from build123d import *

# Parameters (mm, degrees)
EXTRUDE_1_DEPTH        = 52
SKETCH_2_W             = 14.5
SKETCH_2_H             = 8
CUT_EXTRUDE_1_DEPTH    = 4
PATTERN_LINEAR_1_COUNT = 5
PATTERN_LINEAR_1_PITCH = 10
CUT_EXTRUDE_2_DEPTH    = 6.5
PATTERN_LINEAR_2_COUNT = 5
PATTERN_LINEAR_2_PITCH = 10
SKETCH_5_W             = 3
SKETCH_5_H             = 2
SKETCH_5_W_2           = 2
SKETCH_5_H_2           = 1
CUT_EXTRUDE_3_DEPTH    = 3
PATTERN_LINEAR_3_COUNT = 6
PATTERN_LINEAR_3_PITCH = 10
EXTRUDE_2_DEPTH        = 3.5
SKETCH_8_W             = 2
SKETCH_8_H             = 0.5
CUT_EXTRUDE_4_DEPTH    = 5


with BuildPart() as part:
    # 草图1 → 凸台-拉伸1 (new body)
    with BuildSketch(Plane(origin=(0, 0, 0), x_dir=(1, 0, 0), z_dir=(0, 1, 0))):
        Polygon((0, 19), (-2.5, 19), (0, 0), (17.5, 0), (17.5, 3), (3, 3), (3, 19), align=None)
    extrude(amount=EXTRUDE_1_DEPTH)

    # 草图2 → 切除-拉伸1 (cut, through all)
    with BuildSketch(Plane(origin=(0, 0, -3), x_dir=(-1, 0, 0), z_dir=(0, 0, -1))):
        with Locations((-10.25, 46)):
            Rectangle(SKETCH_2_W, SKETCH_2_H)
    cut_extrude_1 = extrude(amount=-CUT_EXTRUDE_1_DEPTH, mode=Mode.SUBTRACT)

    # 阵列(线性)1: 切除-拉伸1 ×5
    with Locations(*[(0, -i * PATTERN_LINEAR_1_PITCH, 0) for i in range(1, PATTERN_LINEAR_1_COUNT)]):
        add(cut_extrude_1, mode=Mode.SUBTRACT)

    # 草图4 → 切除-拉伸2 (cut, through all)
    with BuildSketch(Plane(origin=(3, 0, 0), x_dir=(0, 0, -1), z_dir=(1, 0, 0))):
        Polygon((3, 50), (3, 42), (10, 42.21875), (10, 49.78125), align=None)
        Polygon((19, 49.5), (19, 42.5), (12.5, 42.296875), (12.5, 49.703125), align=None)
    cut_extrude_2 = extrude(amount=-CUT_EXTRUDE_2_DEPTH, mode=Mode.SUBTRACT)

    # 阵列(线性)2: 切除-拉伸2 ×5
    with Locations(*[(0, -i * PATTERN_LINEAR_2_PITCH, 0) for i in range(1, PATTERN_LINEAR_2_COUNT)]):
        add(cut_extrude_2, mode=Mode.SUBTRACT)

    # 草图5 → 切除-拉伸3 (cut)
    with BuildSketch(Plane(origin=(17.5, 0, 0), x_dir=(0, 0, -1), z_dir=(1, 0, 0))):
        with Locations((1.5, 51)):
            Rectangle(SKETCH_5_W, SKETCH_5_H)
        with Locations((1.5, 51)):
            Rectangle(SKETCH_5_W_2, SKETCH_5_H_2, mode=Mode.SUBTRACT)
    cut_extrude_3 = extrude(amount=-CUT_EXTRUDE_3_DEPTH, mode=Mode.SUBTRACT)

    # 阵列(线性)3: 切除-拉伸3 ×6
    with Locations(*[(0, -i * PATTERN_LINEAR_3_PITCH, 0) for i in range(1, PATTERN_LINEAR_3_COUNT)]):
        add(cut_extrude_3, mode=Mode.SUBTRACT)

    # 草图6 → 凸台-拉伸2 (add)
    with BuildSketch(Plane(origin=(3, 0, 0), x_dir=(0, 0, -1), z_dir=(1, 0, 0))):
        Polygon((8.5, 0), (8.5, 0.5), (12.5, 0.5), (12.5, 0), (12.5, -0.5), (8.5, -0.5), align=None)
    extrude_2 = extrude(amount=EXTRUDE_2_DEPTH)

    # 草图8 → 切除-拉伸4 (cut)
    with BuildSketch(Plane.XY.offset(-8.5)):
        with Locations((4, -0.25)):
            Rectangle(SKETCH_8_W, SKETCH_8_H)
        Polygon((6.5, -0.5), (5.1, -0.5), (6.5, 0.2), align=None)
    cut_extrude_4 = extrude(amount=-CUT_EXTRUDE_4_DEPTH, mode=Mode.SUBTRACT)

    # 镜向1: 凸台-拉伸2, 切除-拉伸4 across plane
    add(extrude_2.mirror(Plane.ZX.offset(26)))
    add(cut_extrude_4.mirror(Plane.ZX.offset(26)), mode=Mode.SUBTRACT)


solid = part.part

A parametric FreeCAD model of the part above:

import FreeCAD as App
import Part
import Sketcher

V = App.Vector
Q = App.Units.Quantity

doc = App.newDocument("Part")
body = doc.addObject("PartDesign::Body", "Body")

# Sketch on XZ plane
sketch1 = body.newObject("Sketcher::SketchObject", "Sketch")
sketch1.AttachmentSupport = (doc.getObject("XZ_Plane"), [""])
sketch1.MapMode = "FlatFace"
sketch1.addGeometry([
    Part.LineSegment(V(-2.5, -19, 0), V(0, 0, 0)),  # 0
    Part.LineSegment(V(0, 0, 0), V(17.5, 0, 0)),  # 1
    Part.LineSegment(V(17.5, 0, 0), V(17.5, -3, 0)),  # 2
    Part.LineSegment(V(17.5, -3, 0), V(3, -3, 0)),  # 3
    Part.LineSegment(V(3, -3, 0), V(3, -19, 0)),  # 4
    Part.LineSegment(V(3, -19, 0), V(-2.5, -19, 0)),  # 5
], False)
sketch1.addConstraint([
    Sketcher.Constraint("Coincident", 0, 2, 1, 1),
    Sketcher.Constraint("Coincident", 1, 2, 2, 1),
    Sketcher.Constraint("Coincident", 2, 2, 3, 1),
    Sketcher.Constraint("Coincident", 3, 2, 4, 1),
    Sketcher.Constraint("Coincident", 4, 2, 5, 1),
    Sketcher.Constraint("Coincident", 5, 2, 0, 1),
    Sketcher.Constraint("Horizontal", 1),
    Sketcher.Constraint("Vertical", 2),
    Sketcher.Constraint("Horizontal", 3),
    Sketcher.Constraint("Vertical", 4),
    Sketcher.Constraint("Horizontal", 5),
    Sketcher.Constraint("Coincident", 0, 2, -1, 1),
    Sketcher.Constraint("DistanceY", 2, 2, 2, 1, Q("3 mm")),
    Sketcher.Constraint("DistanceY", 4, 2, 4, 1, Q("16 mm")),
    Sketcher.Constraint("DistanceX", 1, 1, 1, 2, Q("17.5 mm")),
    Sketcher.Constraint("DistanceX", 3, 2, 3, 1, Q("14.5 mm")),
    Sketcher.Constraint("DistanceX", 5, 2, 5, 1, Q("5.5 mm")),
])
pad1 = body.newObject("PartDesign::Pad", "Pad")
pad1.Profile = sketch1
pad1.Length = 52
pad1.Reversed = True

# Sketch on XY plane
sketch2 = body.newObject("Sketcher::SketchObject", "Sketch001")
sketch2.AttachmentSupport = (doc.getObject("XY_Plane"), [""])
sketch2.MapMode = "FlatFace"
sketch2.AttachmentOffset = App.Placement(V(0, 0, -3), App.Rotation())
sketch2.addGeometry([
    Part.LineSegment(V(18, 50, 0), V(18, 42, 0)),
    Part.LineSegment(V(18, 42, 0), V(3, 42, 0)),
    Part.LineSegment(V(3, 42, 0), V(3, 50, 0)),
    Part.LineSegment(V(3, 50, 0), V(18, 50, 0)),
], False)
sketch2.addConstraint([
    Sketcher.Constraint("Coincident", 0, 2, 1, 1),
    Sketcher.Constraint("Coincident", 1, 2, 2, 1),
    Sketcher.Constraint("Coincident", 2, 2, 3, 1),
    Sketcher.Constraint("Coincident", 3, 2, 0, 1),
    Sketcher.Constraint("Vertical", 0),
    Sketcher.Constraint("Horizontal", 1),
    Sketcher.Constraint("Vertical", 2),
    Sketcher.Constraint("Horizontal", 3),
    Sketcher.Constraint("DistanceY", 0, 2, 0, 1, Q("8 mm")),
    Sketcher.Constraint("DistanceX", 1, 2, 1, 1, Q("14.5 mm")),
    Sketcher.Constraint("DistanceY", -1, 1, 0, 2, Q("42 mm")),
    Sketcher.Constraint("DistanceX", -1, 1, 1, 2, Q("3 mm")),
])
pocket1 = body.newObject("PartDesign::Pocket", "Pocket")
pocket1.Profile = sketch2
pocket1.Type = "ThroughAll"
pocket1.Reversed = True
doc.recompute()

linearpattern = body.newObject("PartDesign::LinearPattern", "LinearPattern")
linearpattern.Originals = [pocket1]
linearpattern.Direction = (doc.getObject("Y_Axis"), [""])
linearpattern.Mode = "offset"
linearpattern.Offset = 10
linearpattern.Occurrences = 5
linearpattern.Reversed = True
body.Tip = linearpattern

# Sketch on YZ plane
sketch3 = body.newObject("Sketcher::SketchObject", "Sketch002")
sketch3.AttachmentSupport = (doc.getObject("YZ_Plane"), [""])
sketch3.MapMode = "FlatFace"
sketch3.AttachmentOffset = App.Placement(V(0, 0, 3), App.Rotation())
sketch3.addGeometry([
    Part.LineSegment(V(50, -3, 0), V(42, -3, 0)),  # 0
    Part.LineSegment(V(42, -3, 0), V(42, -10, 0)),  # 1
    Part.LineSegment(V(42, -10, 0), V(50, -10, 0)),  # 2
    Part.LineSegment(V(50, -10, 0), V(50, -3, 0)),  # 3
    Part.LineSegment(V(42, -19, 0), V(50, -19, 0)),  # 4
    Part.LineSegment(V(50, -19, 0), V(50, -12, 0)),  # 5
    Part.LineSegment(V(50, -12, 0), V(42, -12, 0)),  # 6
    Part.LineSegment(V(42, -12, 0), V(42, -19, 0)),  # 7
], False)
sketch3.addConstraint([
    Sketcher.Constraint("Coincident", 0, 2, 1, 1),
    Sketcher.Constraint("Coincident", 1, 2, 2, 1),
    Sketcher.Constraint("Coincident", 2, 2, 3, 1),
    Sketcher.Constraint("Coincident", 3, 2, 0, 1),
    Sketcher.Constraint("Coincident", 4, 2, 5, 1),
    Sketcher.Constraint("Coincident", 5, 2, 6, 1),
    Sketcher.Constraint("Coincident", 6, 2, 7, 1),
    Sketcher.Constraint("Coincident", 7, 2, 4, 1),
    Sketcher.Constraint("Horizontal", 0),
    Sketcher.Constraint("Horizontal", 2),
    Sketcher.Constraint("Horizontal", 4),
    Sketcher.Constraint("Horizontal", 6),
    Sketcher.Constraint("Parallel", 3, 5),
    Sketcher.Constraint("Parallel", 1, 7),
    Sketcher.Constraint("Equal", 1, 3),
    Sketcher.Constraint("DistanceX", 0, 2, 0, 1, Q("8 mm")),
    Sketcher.Constraint("DistanceX", 4, 1, 4, 2, Q("7 mm")),
    Sketcher.Constraint("DistanceX", -1, 1, 0, 2, Q("42 mm")),
    Sketcher.Constraint("DistanceY", 0, 2, -1, 1, Q("3 mm")),
    Sketcher.Constraint("DistanceY", 1, 2, -1, 1, Q("10 mm")),
    Sketcher.Constraint("DistanceY", 4, 2, -1, 1, Q("19 mm")),
    Sketcher.Constraint("DistanceX", -1, 1, 4, 2, Q("49.5 mm")),
    Sketcher.Constraint("DistanceY", 5, 2, -1, 1, Q("12.5 mm")),
    Sketcher.Constraint("DistanceX", 2, 1, 2, 2, Q("7.5625 mm")),
])
pocket2 = body.newObject("PartDesign::Pocket", "Pocket001")
pocket2.Profile = sketch3
pocket2.Type = "ThroughAll"
doc.recompute()

linearpattern2 = body.newObject("PartDesign::LinearPattern", "LinearPattern001")
linearpattern2.Originals = [pocket2]
linearpattern2.Direction = (doc.getObject("Y_Axis"), [""])
linearpattern2.Mode = "offset"
linearpattern2.Offset = 10
linearpattern2.Occurrences = 5
linearpattern2.Reversed = True
body.Tip = linearpattern2

# Sketch on YZ plane
sketch4 = body.newObject("Sketcher::SketchObject", "Sketch003")
sketch4.AttachmentSupport = (doc.getObject("YZ_Plane"), [""])
sketch4.MapMode = "FlatFace"
sketch4.AttachmentOffset = App.Placement(V(0, 0, 17.5), App.Rotation())
sketch4.addGeometry([
    Part.LineSegment(V(52, 0, 0), V(50, 0, 0)),  # 0
    Part.LineSegment(V(50, 0, 0), V(50, -3, 0)),  # 1
    Part.LineSegment(V(50, -3, 0), V(52, -3, 0)),  # 2
    Part.LineSegment(V(52, -3, 0), V(52, 0, 0)),  # 3
    Part.LineSegment(V(50.5, -2.5, 0), V(50.5, -0.5, 0)),  # 4
    Part.LineSegment(V(50.5, -0.5, 0), V(51.5, -0.5, 0)),  # 5
    Part.LineSegment(V(51.5, -0.5, 0), V(51.5, -2.5, 0)),  # 6
    Part.LineSegment(V(51.5, -2.5, 0), V(50.5, -2.5, 0)),  # 7
], False)
sketch4.addConstraint([
    Sketcher.Constraint("Coincident", 0, 2, 1, 1),
    Sketcher.Constraint("Coincident", 1, 2, 2, 1),
    Sketcher.Constraint("Coincident", 2, 2, 3, 1),
    Sketcher.Constraint("Coincident", 3, 2, 0, 1),
    Sketcher.Constraint("Coincident", 4, 2, 5, 1),
    Sketcher.Constraint("Coincident", 5, 2, 6, 1),
    Sketcher.Constraint("Coincident", 6, 2, 7, 1),
    Sketcher.Constraint("Coincident", 7, 2, 4, 1),
    Sketcher.Constraint("Horizontal", 0),
    Sketcher.Constraint("Vertical", 1),
    Sketcher.Constraint("Horizontal", 2),
    Sketcher.Constraint("Vertical", 3),
    Sketcher.Constraint("Vertical", 4),
    Sketcher.Constraint("Horizontal", 5),
    Sketcher.Constraint("Vertical", 6),
    Sketcher.Constraint("Horizontal", 7),
    Sketcher.Constraint("PointOnObject", 0, 2, -1),
    Sketcher.Constraint("Equal", 2, 4),
    Sketcher.Constraint("DistanceX", 0, 2, 0, 1, Q("2 mm")),
    Sketcher.Constraint("DistanceX", 5, 1, 5, 2, Q("1 mm")),
    Sketcher.Constraint("DistanceY", 1, 2, 1, 1, Q("3 mm")),
    Sketcher.Constraint("DistanceX", -1, 1, 0, 2, Q("50 mm")),
    Sketcher.Constraint("DistanceX", -1, 1, 4, 2, Q("50.5 mm")),
    Sketcher.Constraint("DistanceY", 4, 2, -1, 1, Q("0.5 mm")),
])
pocket3 = body.newObject("PartDesign::Pocket", "Pocket002")
pocket3.Profile = sketch4
pocket3.Length = 3
doc.recompute()

linearpattern3 = body.newObject("PartDesign::LinearPattern", "LinearPattern002")
linearpattern3.Originals = [pocket3]
linearpattern3.Direction = (doc.getObject("Y_Axis"), [""])
linearpattern3.Mode = "offset"
linearpattern3.Offset = 10
linearpattern3.Occurrences = 6
linearpattern3.Reversed = True
body.Tip = linearpattern3

# Sketch on YZ plane
sketch5 = body.newObject("Sketcher::SketchObject", "Sketch004")
sketch5.AttachmentSupport = (doc.getObject("YZ_Plane"), [""])
sketch5.MapMode = "FlatFace"
sketch5.AttachmentOffset = App.Placement(V(0, 0, 3), App.Rotation())
sketch5.addGeometry([
    Part.LineSegment(V(0.5, -8.5, 0), V(-0.5, -8.5, 0)),
    Part.LineSegment(V(-0.5, -8.5, 0), V(-0.5, -12.5, 0)),
    Part.LineSegment(V(-0.5, -12.5, 0), V(0.5, -12.5, 0)),
    Part.LineSegment(V(0.5, -12.5, 0), V(0.5, -8.5, 0)),
], False)
sketch5.addConstraint([
    Sketcher.Constraint("Coincident", 0, 2, 1, 1),
    Sketcher.Constraint("Coincident", 1, 2, 2, 1),
    Sketcher.Constraint("Coincident", 2, 2, 3, 1),
    Sketcher.Constraint("Coincident", 3, 2, 0, 1),
    Sketcher.Constraint("Horizontal", 0),
    Sketcher.Constraint("Vertical", 1),
    Sketcher.Constraint("Horizontal", 2),
    Sketcher.Constraint("Vertical", 3),
    Sketcher.Constraint("DistanceX", 0, 2, 0, 1, Q("1 mm")),
    Sketcher.Constraint("DistanceY", 1, 2, 1, 1, Q("4 mm")),
    Sketcher.Constraint("DistanceX", 0, 2, -1, 1, Q("0.5 mm")),
    Sketcher.Constraint("DistanceY", 0, 2, -1, 1, Q("8.5 mm")),
])
pad2 = body.newObject("PartDesign::Pad", "Pad001")
pad2.Profile = sketch5
pad2.Length = 3.5

# Sketch on XY plane
sketch6 = body.newObject("Sketcher::SketchObject", "Sketch005")
sketch6.AttachmentSupport = (doc.getObject("XY_Plane"), [""])
sketch6.MapMode = "FlatFace"
sketch6.AttachmentOffset = App.Placement(V(0, 0, -8.5), App.Rotation())
sketch6.addGeometry([
    Part.LineSegment(V(3, 0, 0), V(3, -0.5, 0)),  # 0
    Part.LineSegment(V(3, -0.5, 0), V(5, -0.5, 0)),  # 1
    Part.LineSegment(V(5, -0.5, 0), V(5, 0, 0)),  # 2
    Part.LineSegment(V(5, 0, 0), V(3, 0, 0)),  # 3
    Part.LineSegment(V(5.1, -0.5, 0), V(6.5, -0.5, 0)),  # 4
    Part.LineSegment(V(6.5, -0.5, 0), V(6.5, 0.2, 0)),  # 5
    Part.LineSegment(V(6.5, 0.2, 0), V(5.1, -0.5, 0)),  # 6
], False)
sketch6.addConstraint([
    Sketcher.Constraint("Coincident", 0, 2, 1, 1),
    Sketcher.Constraint("Coincident", 1, 2, 2, 1),
    Sketcher.Constraint("Coincident", 2, 2, 3, 1),
    Sketcher.Constraint("Coincident", 3, 2, 0, 1),
    Sketcher.Constraint("Coincident", 4, 2, 5, 1),
    Sketcher.Constraint("Coincident", 5, 2, 6, 1),
    Sketcher.Constraint("Coincident", 6, 2, 4, 1),
    Sketcher.Constraint("Vertical", 0),
    Sketcher.Constraint("Horizontal", 1),
    Sketcher.Constraint("Vertical", 2),
    Sketcher.Constraint("Horizontal", 3),
    Sketcher.Constraint("Horizontal", 4),
    Sketcher.Constraint("Vertical", 5),
    Sketcher.Constraint("PointOnObject", 2, 2, -1),
    Sketcher.Constraint("Horizontal", 1, 2, 4, 2),
    Sketcher.Constraint("DistanceX", 1, 1, 1, 2, Q("2 mm")),
    Sketcher.Constraint("DistanceX", 4, 1, 4, 2, Q("1.4 mm")),
    Sketcher.Constraint("DistanceY", 0, 2, 0, 1, Q("0.5 mm")),
    Sketcher.Constraint("DistanceY", 5, 1, 5, 2, Q("0.7 mm")),
    Sketcher.Constraint("DistanceX", -1, 1, 0, 2, Q("3 mm")),
    Sketcher.Constraint("DistanceX", -1, 1, 4, 2, Q("6.5 mm")),
])
pocket4 = body.newObject("PartDesign::Pocket", "Pocket003")
pocket4.Profile = sketch6
pocket4.Length = 5
doc.recompute()

datumplane = body.newObject("PartDesign::Plane", "DatumPlane")
datumplane.AttachmentSupport = (doc.getObject("XZ_Plane"), [""])
datumplane.MapMode = "FlatFace"
datumplane.AttachmentOffset = App.Placement(V(0, 0, -26), App.Rotation())
mirrored = body.newObject("PartDesign::Mirrored", "Mirrored")
mirrored.Originals = [pad2, pocket4]
mirrored.MirrorPlane = (datumplane, [""])
body.Tip = mirrored

doc.recompute()
